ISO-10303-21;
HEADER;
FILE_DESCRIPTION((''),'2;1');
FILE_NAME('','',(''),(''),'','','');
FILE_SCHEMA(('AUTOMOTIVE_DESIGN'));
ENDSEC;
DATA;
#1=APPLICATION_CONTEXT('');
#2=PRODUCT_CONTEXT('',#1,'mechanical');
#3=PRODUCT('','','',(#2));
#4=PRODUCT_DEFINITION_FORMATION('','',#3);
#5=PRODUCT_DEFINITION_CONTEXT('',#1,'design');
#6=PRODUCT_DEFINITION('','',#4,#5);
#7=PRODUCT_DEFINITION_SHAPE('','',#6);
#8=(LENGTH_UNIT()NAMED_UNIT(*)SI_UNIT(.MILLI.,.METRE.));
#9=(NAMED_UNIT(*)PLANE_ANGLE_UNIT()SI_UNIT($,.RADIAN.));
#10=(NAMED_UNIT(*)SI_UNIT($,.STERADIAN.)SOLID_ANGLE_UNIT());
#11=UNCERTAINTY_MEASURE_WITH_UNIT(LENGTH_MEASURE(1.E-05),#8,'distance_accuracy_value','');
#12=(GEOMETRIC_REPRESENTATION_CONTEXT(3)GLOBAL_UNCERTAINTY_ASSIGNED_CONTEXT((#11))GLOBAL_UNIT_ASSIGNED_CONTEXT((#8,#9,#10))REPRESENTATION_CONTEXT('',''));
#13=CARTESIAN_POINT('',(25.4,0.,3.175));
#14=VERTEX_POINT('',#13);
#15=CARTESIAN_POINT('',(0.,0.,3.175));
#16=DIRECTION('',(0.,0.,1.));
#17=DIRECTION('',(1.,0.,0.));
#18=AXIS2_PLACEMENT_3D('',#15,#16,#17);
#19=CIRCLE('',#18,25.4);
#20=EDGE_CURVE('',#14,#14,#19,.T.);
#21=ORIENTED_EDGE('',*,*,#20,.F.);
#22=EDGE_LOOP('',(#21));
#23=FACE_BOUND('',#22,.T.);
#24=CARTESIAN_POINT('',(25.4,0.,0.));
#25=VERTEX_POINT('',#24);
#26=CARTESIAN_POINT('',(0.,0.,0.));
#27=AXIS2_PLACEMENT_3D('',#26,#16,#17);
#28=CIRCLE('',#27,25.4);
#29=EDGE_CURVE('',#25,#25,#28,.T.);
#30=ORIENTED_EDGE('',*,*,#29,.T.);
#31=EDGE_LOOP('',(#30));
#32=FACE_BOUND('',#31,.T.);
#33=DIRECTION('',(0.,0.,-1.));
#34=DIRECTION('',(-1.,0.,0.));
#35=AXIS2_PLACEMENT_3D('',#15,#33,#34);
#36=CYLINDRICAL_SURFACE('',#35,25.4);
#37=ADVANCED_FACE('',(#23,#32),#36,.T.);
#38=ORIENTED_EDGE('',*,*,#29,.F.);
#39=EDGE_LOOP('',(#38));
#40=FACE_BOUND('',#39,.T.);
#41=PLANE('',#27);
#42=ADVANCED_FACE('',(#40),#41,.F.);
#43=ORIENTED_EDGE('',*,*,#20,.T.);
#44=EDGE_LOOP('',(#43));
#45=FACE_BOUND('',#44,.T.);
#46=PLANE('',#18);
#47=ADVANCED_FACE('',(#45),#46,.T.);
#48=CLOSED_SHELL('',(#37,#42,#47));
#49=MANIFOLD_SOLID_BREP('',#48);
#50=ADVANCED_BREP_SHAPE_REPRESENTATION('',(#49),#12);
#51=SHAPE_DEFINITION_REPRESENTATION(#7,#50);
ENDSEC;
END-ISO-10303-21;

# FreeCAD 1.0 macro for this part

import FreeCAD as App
import Part
import Sketcher
from FreeCAD import Vector
Q = App.Units.Quantity

doc = App.newDocument("Part")
body = doc.addObject("PartDesign::Body", "Body")

# Sketch on XY plane
sketch1 = doc.addObject("Sketcher::SketchObject", "Sketch")
body.addObject(sketch1)
sketch1.AttachmentSupport = (doc.XY_Plane, [""])
sketch1.MapMode = "FlatFace"
sketch1.addGeometry(Part.Circle(Vector(0, 0, 0), Vector(0, 0, 1), 25.4), False)
sketch1.addConstraint(Sketcher.Constraint("Coincident", 0, 3, -1, 1))
sketch1.addConstraint(Sketcher.Constraint("Diameter", 0, Q("2 in")))
pad1 = doc.addObject("PartDesign::Pad", "Pad")
body.addObject(pad1)
pad1.Profile = sketch1
pad1.Length = Q("0.125 in")

doc.recompute()
